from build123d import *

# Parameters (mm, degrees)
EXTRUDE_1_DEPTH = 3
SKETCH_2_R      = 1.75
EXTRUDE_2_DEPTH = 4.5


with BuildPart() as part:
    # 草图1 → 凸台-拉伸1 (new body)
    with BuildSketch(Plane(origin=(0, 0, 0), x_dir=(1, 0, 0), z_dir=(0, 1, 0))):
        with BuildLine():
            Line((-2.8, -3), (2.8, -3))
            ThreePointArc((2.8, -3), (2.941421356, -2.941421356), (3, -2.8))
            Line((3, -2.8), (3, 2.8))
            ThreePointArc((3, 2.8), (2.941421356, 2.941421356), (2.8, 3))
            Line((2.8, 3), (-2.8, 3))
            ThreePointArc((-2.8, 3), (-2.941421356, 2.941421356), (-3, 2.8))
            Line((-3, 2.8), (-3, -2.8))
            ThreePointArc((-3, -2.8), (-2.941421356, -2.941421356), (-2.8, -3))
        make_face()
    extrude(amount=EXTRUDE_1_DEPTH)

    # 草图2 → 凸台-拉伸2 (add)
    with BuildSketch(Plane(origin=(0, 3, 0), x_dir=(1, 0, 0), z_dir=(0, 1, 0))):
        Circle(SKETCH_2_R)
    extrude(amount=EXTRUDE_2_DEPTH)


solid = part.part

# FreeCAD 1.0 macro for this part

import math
import FreeCAD as App
import Part
import Sketcher

doc = App.newDocument("Part")
params = doc.addObject("Spreadsheet::Sheet", "Params")
for row, (alias, value) in enumerate([
    ("sketch1_radius", "0.2 mm"),
    ("sketch1_width", "5.6 mm"),
    ("pad1_length", "3 mm"),
    ("sketch2_diameter", "3.5 mm"),
    ("pad2_length", "4.5 mm"),
], start=1):
    params.set(f"A{row}", alias)
    params.set(f"B{row}", "=" + value)
    params.setAlias(f"B{row}", alias)

body = doc.addObject("PartDesign::Body", "Body")

# Sketch on XZ plane
sketch1 = body.newObject("Sketcher::SketchObject", "Sketch")
sketch1.AttachmentSupport = (doc.getObject("XZ_Plane"), [""])
sketch1.MapMode = "FlatFace"
sketch1.addGeometry(Part.LineSegment(App.Vector(-2.8, 3, 0), App.Vector(2.8, 3, 0)), False)
sketch1.addGeometry(Part.ArcOfCircle(Part.Circle(App.Vector(2.8, 2.8, 0), App.Vector(0, 0, 1), 0.2), math.radians(0), math.radians(90)), False)
sketch1.addGeometry(Part.LineSegment(App.Vector(3, 2.8, 0), App.Vector(3, -2.8, 0)), False)
sketch1.addGeometry(Part.ArcOfCircle(Part.Circle(App.Vector(2.8, -2.8, 0), App.Vector(0, 0, 1), 0.2), math.radians(-90), math.radians(0)), False)
sketch1.addGeometry(Part.LineSegment(App.Vector(2.8, -3, 0), App.Vector(-2.8, -3, 0)), False)
sketch1.addGeometry(Part.ArcOfCircle(Part.Circle(App.Vector(-2.8, -2.8, 0), App.Vector(0, 0, 1), 0.2), math.radians(-180), math.radians(-90)), False)
sketch1.addGeometry(Part.LineSegment(App.Vector(-3, -2.8, 0), App.Vector(-3, 2.8, 0)), False)
sketch1.addGeometry(Part.ArcOfCircle(Part.Circle(App.Vector(-2.8, 2.8, 0), App.Vector(0, 0, 1), 0.2), math.radians(90), math.radians(180)), False)
sketch1.addConstraint(Sketcher.Constraint("Tangent", 0, 2, 1, 2))
sketch1.addConstraint(Sketcher.Constraint("Tangent", 1, 1, 2, 1))
sketch1.addConstraint(Sketcher.Constraint("Tangent", 2, 2, 3, 2))
sketch1.addConstraint(Sketcher.Constraint("Tangent", 3, 1, 4, 1))
sketch1.addConstraint(Sketcher.Constraint("Tangent", 4, 2, 5, 2))
sketch1.addConstraint(Sketcher.Constraint("Tangent", 5, 1, 6, 1))
sketch1.addConstraint(Sketcher.Constraint("Tangent", 6, 2, 7, 2))
sketch1.addConstraint(Sketcher.Constraint("Tangent", 7, 1, 0, 1))
sketch1.addConstraint(Sketcher.Constraint("Horizontal", 0))
sketch1.addConstraint(Sketcher.Constraint("Vertical", 2))
sketch1.addConstraint(Sketcher.Constraint("Horizontal", 4))
sketch1.addConstraint(Sketcher.Constraint("Vertical", 6))
sketch1.addConstraint(Sketcher.Constraint("Equal", 1, 3))
sketch1.addConstraint(Sketcher.Constraint("Equal", 3, 5))
sketch1.addConstraint(Sketcher.Constraint("Equal", 5, 7))
sketch1.addConstraint(Sketcher.Constraint("Symmetric", 1, 3, 5, 3, -1, 1))
sketch1.addConstraint(Sketcher.Constraint("Equal", 4, 2))
sketch1.addConstraint(Sketcher.Constraint("Radius", 1, 0.2))
sketch1.addConstraint(Sketcher.Constraint("DistanceX", 0, 1, 0, 2, 5.6))
sketch1.setExpression("Constraints[17]", "Params.sketch1_radius")
sketch1.setExpression("Constraints[18]", "Params.sketch1_width")
pad1 = body.newObject("PartDesign::Pad", "Pad")
pad1.Profile = sketch1
pad1.setExpression("Length", "Params.pad1_length")
pad1.Reversed = True

# Sketch on XZ plane
sketch2 = body.newObject("Sketcher::SketchObject", "Sketch001")
sketch2.AttachmentSupport = (doc.getObject("XZ_Plane"), [""])
sketch2.MapMode = "FlatFace"
sketch2.AttachmentOffset = App.Placement(App.Vector(0, 0, -3), App.Rotation())
sketch2.addGeometry(Part.Circle(App.Vector(0, 0, 0), App.Vector(0, 0, 1), 1.75), False)
sketch2.addConstraint(Sketcher.Constraint("Coincident", 0, 3, -1, 1))
sketch2.addConstraint(Sketcher.Constraint("Diameter", 0, 3.5))
sketch2.setExpression("Constraints[1]", "Params.sketch2_diameter")
pad2 = body.newObject("PartDesign::Pad", "Pad001")
pad2.Profile = sketch2
pad2.setExpression("Length", "Params.pad2_length")
pad2.Reversed = True

doc.recompute()
